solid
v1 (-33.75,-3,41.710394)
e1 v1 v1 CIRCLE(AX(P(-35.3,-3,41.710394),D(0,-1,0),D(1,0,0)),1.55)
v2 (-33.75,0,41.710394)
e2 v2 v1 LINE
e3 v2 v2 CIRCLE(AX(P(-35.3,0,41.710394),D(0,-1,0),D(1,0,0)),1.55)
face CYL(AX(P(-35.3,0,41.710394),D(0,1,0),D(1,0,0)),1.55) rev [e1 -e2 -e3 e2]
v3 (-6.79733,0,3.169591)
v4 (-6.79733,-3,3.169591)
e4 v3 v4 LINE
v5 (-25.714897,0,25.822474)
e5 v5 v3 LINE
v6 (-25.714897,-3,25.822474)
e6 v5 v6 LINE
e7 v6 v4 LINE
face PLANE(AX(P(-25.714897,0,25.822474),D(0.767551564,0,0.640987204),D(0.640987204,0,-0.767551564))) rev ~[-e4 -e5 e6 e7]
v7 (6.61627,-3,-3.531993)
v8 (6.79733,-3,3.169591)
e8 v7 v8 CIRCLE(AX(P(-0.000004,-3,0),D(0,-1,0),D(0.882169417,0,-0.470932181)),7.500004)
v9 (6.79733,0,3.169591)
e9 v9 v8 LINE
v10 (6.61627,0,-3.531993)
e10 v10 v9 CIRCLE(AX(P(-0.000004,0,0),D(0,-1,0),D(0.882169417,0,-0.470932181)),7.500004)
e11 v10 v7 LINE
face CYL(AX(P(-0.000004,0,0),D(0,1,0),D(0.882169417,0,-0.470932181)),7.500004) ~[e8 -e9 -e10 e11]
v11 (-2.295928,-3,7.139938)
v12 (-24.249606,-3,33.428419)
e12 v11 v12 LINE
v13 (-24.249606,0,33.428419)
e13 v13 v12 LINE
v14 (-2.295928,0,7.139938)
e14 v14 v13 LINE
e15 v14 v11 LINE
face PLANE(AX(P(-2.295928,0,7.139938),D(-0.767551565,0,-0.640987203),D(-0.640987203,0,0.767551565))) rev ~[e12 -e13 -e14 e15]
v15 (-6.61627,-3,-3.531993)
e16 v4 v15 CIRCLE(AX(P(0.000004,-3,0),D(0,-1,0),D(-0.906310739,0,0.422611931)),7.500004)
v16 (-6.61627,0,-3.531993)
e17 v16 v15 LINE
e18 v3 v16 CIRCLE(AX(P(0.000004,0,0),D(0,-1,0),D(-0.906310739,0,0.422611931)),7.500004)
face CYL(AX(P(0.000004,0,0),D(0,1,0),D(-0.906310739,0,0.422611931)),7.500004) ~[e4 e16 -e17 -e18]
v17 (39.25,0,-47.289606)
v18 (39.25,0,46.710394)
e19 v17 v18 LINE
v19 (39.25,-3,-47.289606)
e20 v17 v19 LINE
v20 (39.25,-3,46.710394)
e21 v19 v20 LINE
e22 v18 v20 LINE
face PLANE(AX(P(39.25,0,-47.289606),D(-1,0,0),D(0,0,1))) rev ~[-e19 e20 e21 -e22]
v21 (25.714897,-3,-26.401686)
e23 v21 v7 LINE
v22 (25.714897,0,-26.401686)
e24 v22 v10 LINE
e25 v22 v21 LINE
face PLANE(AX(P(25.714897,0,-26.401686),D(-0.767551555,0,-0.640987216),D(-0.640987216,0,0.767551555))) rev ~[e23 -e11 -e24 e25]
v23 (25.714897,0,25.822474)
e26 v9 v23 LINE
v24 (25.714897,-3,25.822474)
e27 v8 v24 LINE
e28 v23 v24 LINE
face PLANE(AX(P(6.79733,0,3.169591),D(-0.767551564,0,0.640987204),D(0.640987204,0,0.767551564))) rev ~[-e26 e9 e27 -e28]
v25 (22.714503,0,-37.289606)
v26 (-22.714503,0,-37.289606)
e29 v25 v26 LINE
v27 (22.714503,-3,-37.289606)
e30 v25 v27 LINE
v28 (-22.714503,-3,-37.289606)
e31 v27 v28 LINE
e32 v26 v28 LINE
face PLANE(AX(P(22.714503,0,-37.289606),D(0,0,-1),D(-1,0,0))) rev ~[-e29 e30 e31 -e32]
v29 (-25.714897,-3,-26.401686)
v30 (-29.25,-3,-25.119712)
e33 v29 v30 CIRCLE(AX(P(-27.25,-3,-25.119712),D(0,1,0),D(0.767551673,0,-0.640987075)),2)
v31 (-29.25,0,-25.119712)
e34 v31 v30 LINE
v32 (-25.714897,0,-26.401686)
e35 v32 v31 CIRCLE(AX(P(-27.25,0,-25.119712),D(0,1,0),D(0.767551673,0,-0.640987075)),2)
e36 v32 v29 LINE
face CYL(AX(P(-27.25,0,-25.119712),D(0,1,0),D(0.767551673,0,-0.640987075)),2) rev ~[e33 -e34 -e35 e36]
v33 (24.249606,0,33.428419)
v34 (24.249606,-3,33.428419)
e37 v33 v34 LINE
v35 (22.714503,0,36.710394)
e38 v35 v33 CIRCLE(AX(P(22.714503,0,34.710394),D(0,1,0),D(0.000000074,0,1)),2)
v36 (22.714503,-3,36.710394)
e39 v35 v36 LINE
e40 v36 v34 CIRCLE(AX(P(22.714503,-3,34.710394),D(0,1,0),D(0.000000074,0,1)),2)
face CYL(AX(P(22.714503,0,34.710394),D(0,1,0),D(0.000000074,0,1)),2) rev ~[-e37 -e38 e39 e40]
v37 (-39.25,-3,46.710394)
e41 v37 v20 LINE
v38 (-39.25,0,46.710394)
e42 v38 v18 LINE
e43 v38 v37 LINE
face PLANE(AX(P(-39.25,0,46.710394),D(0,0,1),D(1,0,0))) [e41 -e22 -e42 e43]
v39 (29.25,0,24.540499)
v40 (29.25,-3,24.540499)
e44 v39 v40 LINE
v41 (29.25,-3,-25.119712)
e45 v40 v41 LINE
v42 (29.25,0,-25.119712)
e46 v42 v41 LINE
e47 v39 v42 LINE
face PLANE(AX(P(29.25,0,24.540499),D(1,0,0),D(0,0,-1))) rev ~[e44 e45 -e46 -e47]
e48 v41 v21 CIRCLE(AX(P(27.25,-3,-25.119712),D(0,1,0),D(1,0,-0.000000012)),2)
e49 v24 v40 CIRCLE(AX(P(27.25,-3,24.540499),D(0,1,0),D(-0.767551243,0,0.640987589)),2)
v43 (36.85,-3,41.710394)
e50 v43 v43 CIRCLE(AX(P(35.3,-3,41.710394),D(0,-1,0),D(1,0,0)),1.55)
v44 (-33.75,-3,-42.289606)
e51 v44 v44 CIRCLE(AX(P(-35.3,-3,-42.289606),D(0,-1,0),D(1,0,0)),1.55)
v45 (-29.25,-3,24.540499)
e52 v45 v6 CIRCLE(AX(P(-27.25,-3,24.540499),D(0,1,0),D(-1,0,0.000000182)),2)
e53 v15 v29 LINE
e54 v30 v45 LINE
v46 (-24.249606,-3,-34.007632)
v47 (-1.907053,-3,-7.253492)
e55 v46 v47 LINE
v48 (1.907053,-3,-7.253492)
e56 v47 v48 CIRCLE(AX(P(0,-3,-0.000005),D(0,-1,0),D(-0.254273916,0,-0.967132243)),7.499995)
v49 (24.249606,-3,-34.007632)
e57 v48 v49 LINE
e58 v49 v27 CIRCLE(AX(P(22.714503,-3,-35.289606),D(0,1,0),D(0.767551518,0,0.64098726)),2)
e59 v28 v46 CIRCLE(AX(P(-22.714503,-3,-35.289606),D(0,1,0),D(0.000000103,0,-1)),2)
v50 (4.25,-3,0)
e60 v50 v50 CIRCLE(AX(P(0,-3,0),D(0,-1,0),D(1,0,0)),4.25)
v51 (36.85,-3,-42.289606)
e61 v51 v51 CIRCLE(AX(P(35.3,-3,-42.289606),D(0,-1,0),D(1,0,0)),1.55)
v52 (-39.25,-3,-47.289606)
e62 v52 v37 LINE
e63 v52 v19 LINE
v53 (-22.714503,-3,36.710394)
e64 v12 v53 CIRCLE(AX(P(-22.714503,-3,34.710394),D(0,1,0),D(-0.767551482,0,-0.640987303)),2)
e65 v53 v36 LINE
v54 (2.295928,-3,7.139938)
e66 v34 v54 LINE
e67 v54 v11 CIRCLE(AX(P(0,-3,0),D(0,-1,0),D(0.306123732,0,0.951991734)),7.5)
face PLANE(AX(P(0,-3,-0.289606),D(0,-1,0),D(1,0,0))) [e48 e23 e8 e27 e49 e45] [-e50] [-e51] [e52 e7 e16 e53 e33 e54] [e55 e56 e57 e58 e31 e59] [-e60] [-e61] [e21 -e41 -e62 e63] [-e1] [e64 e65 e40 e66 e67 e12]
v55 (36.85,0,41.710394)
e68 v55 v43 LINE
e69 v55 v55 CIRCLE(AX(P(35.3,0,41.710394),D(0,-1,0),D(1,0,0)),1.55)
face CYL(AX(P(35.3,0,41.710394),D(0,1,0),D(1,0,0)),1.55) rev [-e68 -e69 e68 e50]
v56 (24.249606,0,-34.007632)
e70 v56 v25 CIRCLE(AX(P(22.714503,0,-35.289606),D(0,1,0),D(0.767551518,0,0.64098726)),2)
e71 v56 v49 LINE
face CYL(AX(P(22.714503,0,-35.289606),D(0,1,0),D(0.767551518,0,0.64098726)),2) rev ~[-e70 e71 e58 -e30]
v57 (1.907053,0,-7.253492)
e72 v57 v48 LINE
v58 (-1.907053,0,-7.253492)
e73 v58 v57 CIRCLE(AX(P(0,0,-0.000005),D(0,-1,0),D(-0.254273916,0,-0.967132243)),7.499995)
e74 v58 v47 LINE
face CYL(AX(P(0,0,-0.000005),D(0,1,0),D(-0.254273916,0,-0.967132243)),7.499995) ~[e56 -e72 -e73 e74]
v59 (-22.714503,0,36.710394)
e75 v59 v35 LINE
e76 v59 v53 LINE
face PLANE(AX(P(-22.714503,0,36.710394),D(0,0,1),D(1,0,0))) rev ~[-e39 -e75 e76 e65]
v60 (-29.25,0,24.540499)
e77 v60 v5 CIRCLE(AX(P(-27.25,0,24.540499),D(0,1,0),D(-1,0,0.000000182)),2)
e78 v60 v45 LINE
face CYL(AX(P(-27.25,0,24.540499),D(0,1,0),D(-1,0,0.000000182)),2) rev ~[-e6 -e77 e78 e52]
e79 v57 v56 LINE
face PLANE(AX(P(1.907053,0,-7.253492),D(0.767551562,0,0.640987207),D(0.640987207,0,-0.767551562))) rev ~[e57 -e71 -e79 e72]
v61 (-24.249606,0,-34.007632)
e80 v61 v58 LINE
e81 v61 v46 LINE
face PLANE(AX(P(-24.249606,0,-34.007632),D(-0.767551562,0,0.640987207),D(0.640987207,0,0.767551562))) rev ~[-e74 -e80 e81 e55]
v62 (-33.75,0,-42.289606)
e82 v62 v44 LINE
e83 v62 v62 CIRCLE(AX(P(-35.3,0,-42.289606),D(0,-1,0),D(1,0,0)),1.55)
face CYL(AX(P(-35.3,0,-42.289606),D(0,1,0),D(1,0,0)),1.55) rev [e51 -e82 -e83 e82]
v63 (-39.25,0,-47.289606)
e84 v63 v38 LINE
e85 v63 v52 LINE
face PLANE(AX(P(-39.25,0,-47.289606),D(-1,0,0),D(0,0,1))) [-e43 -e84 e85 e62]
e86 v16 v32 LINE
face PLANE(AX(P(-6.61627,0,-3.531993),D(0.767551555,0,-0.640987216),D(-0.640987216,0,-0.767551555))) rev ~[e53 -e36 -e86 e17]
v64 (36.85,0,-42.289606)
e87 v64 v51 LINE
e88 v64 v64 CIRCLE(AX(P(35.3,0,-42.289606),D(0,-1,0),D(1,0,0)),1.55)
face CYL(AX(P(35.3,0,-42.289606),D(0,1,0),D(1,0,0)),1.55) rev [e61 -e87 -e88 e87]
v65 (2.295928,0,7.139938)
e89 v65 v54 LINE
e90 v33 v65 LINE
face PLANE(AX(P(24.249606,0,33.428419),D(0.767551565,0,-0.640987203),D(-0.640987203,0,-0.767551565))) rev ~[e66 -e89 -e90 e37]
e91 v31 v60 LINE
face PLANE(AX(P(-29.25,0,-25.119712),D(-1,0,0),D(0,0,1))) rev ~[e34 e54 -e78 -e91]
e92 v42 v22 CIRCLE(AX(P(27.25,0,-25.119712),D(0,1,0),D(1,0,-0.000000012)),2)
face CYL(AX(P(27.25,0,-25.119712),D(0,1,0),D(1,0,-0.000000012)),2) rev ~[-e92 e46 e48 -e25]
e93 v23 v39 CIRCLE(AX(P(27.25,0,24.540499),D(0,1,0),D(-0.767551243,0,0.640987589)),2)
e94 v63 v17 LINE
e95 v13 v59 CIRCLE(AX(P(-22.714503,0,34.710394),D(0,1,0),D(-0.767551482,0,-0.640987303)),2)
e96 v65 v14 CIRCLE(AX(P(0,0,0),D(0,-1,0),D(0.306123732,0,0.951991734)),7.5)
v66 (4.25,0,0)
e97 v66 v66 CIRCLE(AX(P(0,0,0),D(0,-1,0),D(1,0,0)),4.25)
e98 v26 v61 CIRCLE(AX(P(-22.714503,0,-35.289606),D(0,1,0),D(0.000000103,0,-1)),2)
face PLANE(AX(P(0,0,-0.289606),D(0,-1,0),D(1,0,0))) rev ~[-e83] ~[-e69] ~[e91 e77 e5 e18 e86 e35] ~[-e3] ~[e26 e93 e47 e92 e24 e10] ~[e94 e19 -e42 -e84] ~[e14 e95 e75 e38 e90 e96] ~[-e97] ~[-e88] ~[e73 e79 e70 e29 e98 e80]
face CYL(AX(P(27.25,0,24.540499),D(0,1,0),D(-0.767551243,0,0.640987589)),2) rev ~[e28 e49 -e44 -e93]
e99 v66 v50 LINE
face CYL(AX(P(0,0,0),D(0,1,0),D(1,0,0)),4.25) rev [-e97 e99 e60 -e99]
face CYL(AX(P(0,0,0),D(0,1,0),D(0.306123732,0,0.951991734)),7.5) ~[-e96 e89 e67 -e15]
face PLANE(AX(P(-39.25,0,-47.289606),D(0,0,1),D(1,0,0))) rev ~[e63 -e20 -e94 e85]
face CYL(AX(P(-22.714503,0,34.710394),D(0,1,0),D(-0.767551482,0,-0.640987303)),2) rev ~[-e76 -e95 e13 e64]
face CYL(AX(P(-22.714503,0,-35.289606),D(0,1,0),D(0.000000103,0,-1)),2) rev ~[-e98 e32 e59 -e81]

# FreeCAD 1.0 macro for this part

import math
import FreeCAD as App
import Part
import Sketcher
Q = App.Units.Quantity

doc = App.newDocument("Part")
body = doc.addObject("PartDesign::Body", "Body")

sketch1 = body.newObject("Sketcher::SketchObject", "Sketch")
sketch1.AttachmentSupport = (doc.getObject("XZ_Plane"), [""])
sketch1.MapMode = "FlatFace"
sketch1.addGeometry(Part.LineSegment(App.Vector(-39.2, 46.7, 0), App.Vector(-39.2, -47.3, 0)), False)
sketch1.addGeometry(Part.LineSegment(App.Vector(-39.2, -47.3, 0), App.Vector(39.2, -47.3, 0)), False)
sketch1.addGeometry(Part.LineSegment(App.Vector(39.2, -47.3, 0), App.Vector(39.2, 46.7, 0)), False)
sketch1.addGeometry(Part.LineSegment(App.Vector(39.2, 46.7, 0), App.Vector(-39.2, 46.7, 0)), False)
sketch1.addGeometry(Part.Circle(App.Vector(-35.3, -42.3, 0), App.Vector(0, 0, 1), 1.6), False)
sketch1.addGeometry(Part.ArcOfCircle(Part.Circle(App.Vector(-27.3, -25.1, 0), App.Vector(0, 0, 1), 2), math.radians(-180), math.radians(-40)), False)
sketch1.addGeometry(Part.LineSegment(App.Vector(-29.2, -25.1, 0), App.Vector(-29.2, 24.5, 0)), False)
sketch1.addGeometry(Part.ArcOfCircle(Part.Circle(App.Vector(-27.2, 24.5, 0), App.Vector(0, 0, 1), 2), math.radians(40), math.radians(180)), False)
sketch1.addGeometry(Part.LineSegment(App.Vector(-25.7, 25.8, 0), App.Vector(-6.8, 3.2, 0)), False)
sketch1.addGeometry(Part.ArcOfCircle(Part.Circle(App.Vector(0, 0, 0), App.Vector(0, 0, 1), 7.5), math.radians(155), math.radians(208)), False)
sketch1.addGeometry(Part.LineSegment(App.Vector(-6.6, -3.5, 0), App.Vector(-25.7, -26.4, 0)), False)
sketch1.addGeometry(Part.ArcOfCircle(Part.Circle(App.Vector(-22.7, -35.3, 0), App.Vector(0, 0, 1), 2), math.radians(140), math.radians(270)), False)
sketch1.addGeometry(Part.LineSegment(App.Vector(-24.2, -34, 0), App.Vector(-1.9, -7.3, 0)), False)
sketch1.addGeometry(Part.ArcOfCircle(Part.Circle(App.Vector(0, 0, 0), App.Vector(0, 0, 1), 7.5), math.radians(-105), math.radians(-75)), False)
sketch1.addGeometry(Part.LineSegment(App.Vector(1.9, -7.3, 0), App.Vector(24.2, -34, 0)), False)
sketch1.addGeometry(Part.ArcOfCircle(Part.Circle(App.Vector(22.7, -35.3, 0), App.Vector(0, 0, 1), 2), math.radians(-90), math.radians(40)), False)
sketch1.addGeometry(Part.LineSegment(App.Vector(22.7, -37.3, 0), App.Vector(-22.7, -37.3, 0)), False)
sketch1.addGeometry(Part.Circle(App.Vector(35.3, -42.3, 0), App.Vector(0, 0, 1), 1.6), False)
sketch1.addGeometry(Part.LineSegment(App.Vector(25.7, -26.4, 0), App.Vector(6.6, -3.5, 0)), False)
sketch1.addGeometry(Part.ArcOfCircle(Part.Circle(App.Vector(0, 0, 0), App.Vector(0, 0, 1), 7.5), math.radians(-28), math.radians(25)), False)
sketch1.addGeometry(Part.LineSegment(App.Vector(6.8, 3.2, 0), App.Vector(25.7, 25.8, 0)), False)
sketch1.addGeometry(Part.ArcOfCircle(Part.Circle(App.Vector(27.2, 24.5, 0), App.Vector(0, 0, 1), 2), math.radians(0), math.radians(140)), False)
sketch1.addGeometry(Part.LineSegment(App.Vector(29.2, 24.5, 0), App.Vector(29.2, -25.1, 0)), False)
sketch1.addGeometry(Part.ArcOfCircle(Part.Circle(App.Vector(27.3, -25.1, 0), App.Vector(0, 0, 1), 2), math.radians(-140), math.radians(0)), False)
sketch1.addGeometry(Part.Circle(App.Vector(-35.3, 41.7, 0), App.Vector(0, 0, 1), 1.6), False)
sketch1.addGeometry(Part.Circle(App.Vector(0, 0, 0), App.Vector(0, 0, 1), 4.2), False)
sketch1.addGeometry(Part.LineSegment(App.Vector(-2.3, 7.1, 0), App.Vector(-24.2, 33.4, 0)), False)
sketch1.addGeometry(Part.ArcOfCircle(Part.Circle(App.Vector(-22.7, 34.7, 0), App.Vector(0, 0, 1), 2), math.radians(90), math.radians(220)), False)
sketch1.addGeometry(Part.LineSegment(App.Vector(-22.7, 36.7, 0), App.Vector(22.7, 36.7, 0)), False)
sketch1.addGeometry(Part.ArcOfCircle(Part.Circle(App.Vector(22.7, 34.7, 0), App.Vector(0, 0, 1), 2), math.radians(-40), math.radians(90)), False)
sketch1.addGeometry(Part.LineSegment(App.Vector(24.2, 33.4, 0), App.Vector(2.3, 7.1, 0)), False)
sketch1.addGeometry(Part.ArcOfCircle(Part.Circle(App.Vector(0, 0, 0), App.Vector(0, 0, 1), 7.5), math.radians(72), math.radians(108)), False)
sketch1.addGeometry(Part.Circle(App.Vector(35.3, 41.7, 0), App.Vector(0, 0, 1), 1.6), False)
sketch1.addConstraint(Sketcher.Constraint("Coincident", 0, 2, 1, 1))
sketch1.addConstraint(Sketcher.Constraint("Coincident", 1, 2, 2, 1))
sketch1.addConstraint(Sketcher.Constraint("Coincident", 2, 2, 3, 1))
sketch1.addConstraint(Sketcher.Constraint("Coincident", 3, 2, 0, 1))
sketch1.addConstraint(Sketcher.Constraint("Tangent", 5, 1, 6, 1))
sketch1.addConstraint(Sketcher.Constraint("Tangent", 6, 2, 7, 2))
sketch1.addConstraint(Sketcher.Constraint("Tangent", 7, 1, 8, 1))
sketch1.addConstraint(Sketcher.Constraint("Coincident", 8, 2, 9, 1))
sketch1.addConstraint(Sketcher.Constraint("Coincident", 9, 2, 10, 1))
sketch1.addConstraint(Sketcher.Constraint("Tangent", 10, 2, 5, 2))
sketch1.addConstraint(Sketcher.Constraint("Tangent", 11, 1, 12, 1))
sketch1.addConstraint(Sketcher.Constraint("Coincident", 12, 2, 13, 1))
sketch1.addConstraint(Sketcher.Constraint("Coincident", 13, 2, 14, 1))
sketch1.addConstraint(Sketcher.Constraint("Tangent", 14, 2, 15, 2))
sketch1.addConstraint(Sketcher.Constraint("Tangent", 15, 1, 16, 1))
sketch1.addConstraint(Sketcher.Constraint("Tangent", 16, 2, 11, 2))
sketch1.addConstraint(Sketcher.Constraint("Coincident", 18, 2, 19, 1))
sketch1.addConstraint(Sketcher.Constraint("Coincident", 19, 2, 20, 1))
sketch1.addConstraint(Sketcher.Constraint("Tangent", 20, 2, 21, 2))
sketch1.addConstraint(Sketcher.Constraint("Tangent", 21, 1, 22, 1))
sketch1.addConstraint(Sketcher.Constraint("Tangent", 22, 2, 23, 2))
sketch1.addConstraint(Sketcher.Constraint("Tangent", 23, 1, 18, 1))
sketch1.addConstraint(Sketcher.Constraint("Tangent", 26, 2, 27, 2))
sketch1.addConstraint(Sketcher.Constraint("Tangent", 27, 1, 28, 1))
sketch1.addConstraint(Sketcher.Constraint("Tangent", 28, 2, 29, 2))
sketch1.addConstraint(Sketcher.Constraint("Tangent", 29, 1, 30, 1))
sketch1.addConstraint(Sketcher.Constraint("Coincident", 30, 2, 31, 1))
sketch1.addConstraint(Sketcher.Constraint("Coincident", 31, 2, 26, 1))
sketch1.addConstraint(Sketcher.Constraint("Vertical", 0))
sketch1.addConstraint(Sketcher.Constraint("Horizontal", 1))
sketch1.addConstraint(Sketcher.Constraint("Vertical", 2))
sketch1.addConstraint(Sketcher.Constraint("Horizontal", 3))
sketch1.addConstraint(Sketcher.Constraint("Vertical", 6))
sketch1.addConstraint(Sketcher.Constraint("Horizontal", 16))
sketch1.addConstraint(Sketcher.Constraint("Vertical", 22))
sketch1.addConstraint(Sketcher.Constraint("Horizontal", 28))
sketch1.addConstraint(Sketcher.Constraint("Coincident", 9, 3, -1, 1))
sketch1.addConstraint(Sketcher.Constraint("Coincident", 13, 3, -1, 1))
sketch1.addConstraint(Sketcher.Constraint("Coincident", 19, 3, -1, 1))
sketch1.addConstraint(Sketcher.Constraint("Coincident", 25, 3, -1, 1))
sketch1.addConstraint(Sketcher.Constraint("Coincident", 31, 3, -1, 1))
sketch1.addConstraint(Sketcher.Constraint("Equal", 5, 7))
sketch1.addConstraint(Sketcher.Constraint("Equal", 7, 11))
sketch1.addConstraint(Sketcher.Constraint("Equal", 11, 15))
sketch1.addConstraint(Sketcher.Constraint("Equal", 4, 17))
sketch1.addConstraint(Sketcher.Constraint("Equal", 9, 19))
sketch1.addConstraint(Sketcher.Constraint("Equal", 15, 21))
sketch1.addConstraint(Sketcher.Constraint("Equal", 21, 23))
sketch1.addConstraint(Sketcher.Constraint("Equal", 17, 24))
sketch1.addConstraint(Sketcher.Constraint("Equal", 23, 27))
sketch1.addConstraint(Sketcher.Constraint("Equal", 27, 29))
sketch1.addConstraint(Sketcher.Constraint("Equal", 24, 32))
sketch1.addConstraint(Sketcher.Constraint("Symmetric", 4, 3, 17, 3, -2))
sketch1.addConstraint(Sketcher.Constraint("Symmetric", 7, 3, 21, 3, -2))
sketch1.addConstraint(Sketcher.Constraint("Symmetric", 24, 3, 32, 3, -2))
sketch1.addConstraint(Sketcher.Constraint("Symmetric", 11, 1, 14, 2, -2))
sketch1.addConstraint(Sketcher.Constraint("Symmetric", 10, 2, 23, 1, -2))
sketch1.addConstraint(Sketcher.Constraint("Symmetric", 26, 2, 29, 1, -2))
sketch1.addConstraint(Sketcher.Constraint("Parallel", 10, 12))
sketch1.addConstraint(Sketcher.Constraint("Parallel", 8, 14))
sketch1.addConstraint(Sketcher.Constraint("Parallel", 12, 20))
sketch1.addConstraint(Sketcher.Constraint("Parallel", 18, 26))
sketch1.addConstraint(Sketcher.Constraint("Vertical", 4, 3, 24, 3))
sketch1.addConstraint(Sketcher.Constraint("Vertical", 11, 3, 27, 3))
sketch1.addConstraint(Sketcher.Constraint("Radius", 5, Q("2 mm")))
sketch1.addConstraint(Sketcher.Constraint("Diameter", 4, Q("3.1 mm")))
sketch1.addConstraint(Sketcher.Constraint("Diameter", 25, Q("8.5 mm")))
sketch1.addConstraint(Sketcher.Constraint("Radius", 31, Q("7.5 mm")))
sketch1.addConstraint(Sketcher.Constraint("DistanceY", 0, 2, 0, 1, Q("94 mm")))
sketch1.addConstraint(Sketcher.Constraint("DistanceX", 1, 1, 1, 2, Q("78.5 mm")))
sketch1.addConstraint(Sketcher.Constraint("DistanceY", 4, 3, 11, 3, Q("7 mm")))
sketch1.addConstraint(Sketcher.Constraint("DistanceY", 27, 3, 24, 3, Q("7 mm")))
sketch1.addConstraint(Sketcher.Constraint("DistanceY", 0, 2, 4, 3, Q("5 mm")))
sketch1.addConstraint(Sketcher.Constraint("DistanceX", 0, 2, 5, 3, Q("12 mm")))
sketch1.addConstraint(Sketcher.Constraint("DistanceX", 23, 3, 1, 2, Q("12 mm")))
sketch1.addConstraint(Sketcher.Constraint("DistanceY", 32, 3, 2, 2, Q("5 mm")))
sketch1.addConstraint(Sketcher.Constraint("DistanceX", 4, 3, -1, 1, Q("35.3 mm")))
sketch1.addConstraint(Sketcher.Constraint("Radius", 9, Q("7.500004 mm")))
sketch1.addConstraint(Sketcher.Constraint("Radius", 13, Q("7.499995 mm")))
sketch1.addConstraint(Sketcher.Constraint("DistanceY", 6, 1, 6, 2, Q("49.660211 mm")))
sketch1.addConstraint(Sketcher.Constraint("DistanceY", -1, 1, 7, 3, Q("24.540499 mm")))
sketch1.addConstraint(Sketcher.Constraint("DistanceY", 11, 3, 13, 3, Q("35.289601 mm")))
sketch1.addConstraint(Sketcher.Constraint("DistanceX", 9, 3, 15, 3, Q("22.714499 mm")))
sketch1.addConstraint(Sketcher.Constraint("DistanceY", 12, 2, 9, 2, Q("3.721499 mm")))
pad1 = body.newObject("PartDesign::Pad", "Pad")
pad1.Profile = sketch1
pad1.Length = 3

doc.recompute()
